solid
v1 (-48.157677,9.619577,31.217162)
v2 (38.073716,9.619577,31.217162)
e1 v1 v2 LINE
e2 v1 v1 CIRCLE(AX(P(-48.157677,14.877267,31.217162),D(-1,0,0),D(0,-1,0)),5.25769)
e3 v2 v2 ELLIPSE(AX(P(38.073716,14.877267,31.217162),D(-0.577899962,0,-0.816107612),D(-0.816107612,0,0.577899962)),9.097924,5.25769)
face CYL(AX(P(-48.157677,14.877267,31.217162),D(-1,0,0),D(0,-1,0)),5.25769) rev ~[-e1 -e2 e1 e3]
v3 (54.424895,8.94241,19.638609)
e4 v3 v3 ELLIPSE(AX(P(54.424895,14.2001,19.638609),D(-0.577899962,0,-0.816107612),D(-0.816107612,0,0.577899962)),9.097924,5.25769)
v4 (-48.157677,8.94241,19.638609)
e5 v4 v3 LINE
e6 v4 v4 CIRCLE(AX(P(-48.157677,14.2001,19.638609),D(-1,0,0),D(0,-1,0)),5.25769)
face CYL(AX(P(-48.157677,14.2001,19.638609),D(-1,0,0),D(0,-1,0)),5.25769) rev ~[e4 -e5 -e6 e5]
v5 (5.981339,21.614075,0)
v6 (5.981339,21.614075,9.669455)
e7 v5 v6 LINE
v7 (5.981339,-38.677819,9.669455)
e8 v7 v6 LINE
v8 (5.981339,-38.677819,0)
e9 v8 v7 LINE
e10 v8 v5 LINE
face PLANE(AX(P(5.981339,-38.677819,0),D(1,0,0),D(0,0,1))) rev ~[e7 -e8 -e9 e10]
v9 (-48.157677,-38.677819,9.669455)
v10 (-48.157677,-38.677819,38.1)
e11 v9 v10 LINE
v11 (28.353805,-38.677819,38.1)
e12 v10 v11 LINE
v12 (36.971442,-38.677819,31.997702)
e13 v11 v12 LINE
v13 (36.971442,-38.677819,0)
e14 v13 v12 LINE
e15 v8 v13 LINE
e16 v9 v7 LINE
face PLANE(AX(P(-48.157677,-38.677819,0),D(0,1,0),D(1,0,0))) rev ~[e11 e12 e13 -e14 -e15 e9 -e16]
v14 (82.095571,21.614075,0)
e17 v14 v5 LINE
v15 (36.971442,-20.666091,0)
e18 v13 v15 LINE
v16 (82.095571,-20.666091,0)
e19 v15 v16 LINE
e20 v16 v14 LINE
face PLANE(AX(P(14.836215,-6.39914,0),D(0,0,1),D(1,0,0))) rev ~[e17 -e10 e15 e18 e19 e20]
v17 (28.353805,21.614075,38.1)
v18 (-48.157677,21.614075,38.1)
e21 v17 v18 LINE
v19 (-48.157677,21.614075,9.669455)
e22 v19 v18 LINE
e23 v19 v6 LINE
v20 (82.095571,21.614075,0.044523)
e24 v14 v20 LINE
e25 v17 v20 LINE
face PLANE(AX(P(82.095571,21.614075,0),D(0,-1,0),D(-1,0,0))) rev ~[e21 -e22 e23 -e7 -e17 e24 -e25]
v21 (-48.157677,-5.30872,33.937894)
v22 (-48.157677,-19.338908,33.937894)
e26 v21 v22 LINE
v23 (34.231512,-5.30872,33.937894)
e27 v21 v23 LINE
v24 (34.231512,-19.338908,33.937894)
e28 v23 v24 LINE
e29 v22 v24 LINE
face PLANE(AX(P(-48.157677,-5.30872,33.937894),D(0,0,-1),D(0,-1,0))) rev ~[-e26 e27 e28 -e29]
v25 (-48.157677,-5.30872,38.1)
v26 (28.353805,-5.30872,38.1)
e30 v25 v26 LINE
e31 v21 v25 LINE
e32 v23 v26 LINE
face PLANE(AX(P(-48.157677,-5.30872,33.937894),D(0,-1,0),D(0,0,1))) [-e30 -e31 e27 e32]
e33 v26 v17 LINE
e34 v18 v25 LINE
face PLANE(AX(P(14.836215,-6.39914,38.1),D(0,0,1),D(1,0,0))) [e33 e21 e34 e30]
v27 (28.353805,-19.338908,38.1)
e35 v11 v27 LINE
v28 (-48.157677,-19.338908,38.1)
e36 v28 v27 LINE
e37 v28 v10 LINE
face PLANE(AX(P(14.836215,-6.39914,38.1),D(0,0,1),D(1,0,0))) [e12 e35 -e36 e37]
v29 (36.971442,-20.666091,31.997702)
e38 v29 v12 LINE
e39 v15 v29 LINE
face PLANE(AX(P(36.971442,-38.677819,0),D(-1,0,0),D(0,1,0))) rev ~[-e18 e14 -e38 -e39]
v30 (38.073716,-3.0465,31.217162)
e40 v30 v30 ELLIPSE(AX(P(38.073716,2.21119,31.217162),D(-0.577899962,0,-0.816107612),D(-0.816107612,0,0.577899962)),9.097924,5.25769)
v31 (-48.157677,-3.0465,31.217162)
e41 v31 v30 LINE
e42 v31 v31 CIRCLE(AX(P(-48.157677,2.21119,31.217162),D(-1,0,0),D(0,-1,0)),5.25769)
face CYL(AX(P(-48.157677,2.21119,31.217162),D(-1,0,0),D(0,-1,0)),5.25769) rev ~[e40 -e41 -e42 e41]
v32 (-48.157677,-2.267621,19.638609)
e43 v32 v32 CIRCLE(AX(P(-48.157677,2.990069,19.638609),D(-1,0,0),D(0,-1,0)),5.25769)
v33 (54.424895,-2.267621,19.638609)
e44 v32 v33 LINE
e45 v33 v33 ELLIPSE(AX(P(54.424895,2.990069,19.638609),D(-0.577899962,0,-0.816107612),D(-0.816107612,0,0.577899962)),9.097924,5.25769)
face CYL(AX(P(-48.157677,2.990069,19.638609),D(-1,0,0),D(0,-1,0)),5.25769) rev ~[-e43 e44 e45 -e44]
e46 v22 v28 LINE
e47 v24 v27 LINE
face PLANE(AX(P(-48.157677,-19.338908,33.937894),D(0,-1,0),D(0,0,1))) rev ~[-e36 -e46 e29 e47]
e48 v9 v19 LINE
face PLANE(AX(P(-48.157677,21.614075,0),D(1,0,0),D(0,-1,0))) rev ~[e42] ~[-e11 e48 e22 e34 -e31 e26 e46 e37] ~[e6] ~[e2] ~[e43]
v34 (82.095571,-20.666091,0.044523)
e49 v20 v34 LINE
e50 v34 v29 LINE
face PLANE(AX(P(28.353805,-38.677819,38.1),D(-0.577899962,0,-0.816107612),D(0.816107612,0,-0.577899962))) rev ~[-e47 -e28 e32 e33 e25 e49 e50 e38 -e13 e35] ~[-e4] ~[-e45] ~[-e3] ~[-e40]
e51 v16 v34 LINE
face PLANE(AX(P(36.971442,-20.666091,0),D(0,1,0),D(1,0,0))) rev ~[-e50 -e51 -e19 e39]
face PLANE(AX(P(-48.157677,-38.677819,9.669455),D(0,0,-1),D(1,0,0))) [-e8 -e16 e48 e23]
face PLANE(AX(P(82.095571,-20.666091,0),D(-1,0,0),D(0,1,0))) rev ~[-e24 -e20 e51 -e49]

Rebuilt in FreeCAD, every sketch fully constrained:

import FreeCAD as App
import Part
import Sketcher

V = App.Vector
Q = App.Units.Quantity

doc = App.newDocument("Part")
body = doc.addObject("PartDesign::Body", "Body")

# Sketch on XY plane
sketch1 = body.newObject("Sketcher::SketchObject", "Sketch")
sketch1.AttachmentSupport = (doc.getObject("XY_Plane"), [""])
sketch1.MapMode = "FlatFace"
sketch1.addGeometry([
    Part.LineSegment(V(82, 22, 0), V(-48, 22, 0)),  # 0
    Part.LineSegment(V(-48, 22, 0), V(-48, -39, 0)),  # 1
    Part.LineSegment(V(-48, -39, 0), V(37, -39, 0)),  # 2
    Part.LineSegment(V(37, -39, 0), V(37, -21, 0)),  # 3
    Part.LineSegment(V(37, -21, 0), V(82, -21, 0)),  # 4
    Part.LineSegment(V(82, -21, 0), V(82, 22, 0)),  # 5
], False)
sketch1.addConstraint([
    Sketcher.Constraint("Coincident", 0, 2, 1, 1),
    Sketcher.Constraint("Coincident", 1, 2, 2, 1),
    Sketcher.Constraint("Coincident", 2, 2, 3, 1),
    Sketcher.Constraint("Coincident", 3, 2, 4, 1),
    Sketcher.Constraint("Coincident", 4, 2, 5, 1),
    Sketcher.Constraint("Coincident", 5, 2, 0, 1),
    Sketcher.Constraint("Horizontal", 0),
    Sketcher.Constraint("Vertical", 1),
    Sketcher.Constraint("Horizontal", 2),
    Sketcher.Constraint("Vertical", 3),
    Sketcher.Constraint("Horizontal", 4),
    Sketcher.Constraint("Vertical", 5),
    Sketcher.Constraint("DistanceX", 0, 2, 0, 1, Q("130.253248 mm")),
    Sketcher.Constraint("DistanceX", 2, 1, 2, 2, Q("85.129119 mm")),
    Sketcher.Constraint("DistanceY", 1, 2, 1, 1, Q("60.291894 mm")),
    Sketcher.Constraint("DistanceY", 3, 1, 3, 2, Q("18.011728 mm")),
    Sketcher.Constraint("DistanceY", 1, 2, -1, 1, Q("38.677819 mm")),
    Sketcher.Constraint("DistanceX", -1, 1, 4, 2, Q("82.095571 mm")),
])
pad1 = body.newObject("PartDesign::Pad", "Pad")
pad1.Profile = sketch1
pad1.Length = Q("1.5 in")

# Sketch on XZ plane
sketch2 = body.newObject("Sketcher::SketchObject", "Sketch001")
sketch2.AttachmentSupport = (doc.getObject("XZ_Plane"), [""])
sketch2.MapMode = "FlatFace"
sketch2.AttachmentOffset = App.Placement(V(0, 0, 38.677819), App.Rotation())
sketch2.addGeometry([
    Part.LineSegment(V(82, 38, 0), V(28, 38, 0)),
    Part.LineSegment(V(28, 38, 0), V(82, 0, 0)),
    Part.LineSegment(V(82, 0, 0), V(82, 38, 0)),
], False)
sketch2.addConstraint([
    Sketcher.Constraint("Coincident", 0, 2, 1, 1),
    Sketcher.Constraint("Coincident", 1, 2, 2, 1),
    Sketcher.Constraint("Coincident", 2, 2, 0, 1),
    Sketcher.Constraint("Horizontal", 0),
    Sketcher.Constraint("Vertical", 2),
    Sketcher.Constraint("PointOnObject", 1, 2, -1),
    Sketcher.Constraint("DistanceY", 2, 1, 2, 2, Q("1.5 in")),
    Sketcher.Constraint("DistanceX", 0, 2, 0, 1, Q("53.804641 mm")),
    Sketcher.Constraint("DistanceX", -1, 1, 0, 2, Q("28.353805 mm")),
])
pocket1 = body.newObject("PartDesign::Pocket", "Pocket")
pocket1.Profile = sketch2
pocket1.Type = "ThroughAll"

# Sketch on YZ plane
sketch3 = body.newObject("Sketcher::SketchObject", "Sketch002")
sketch3.AttachmentSupport = (doc.getObject("YZ_Plane"), [""])
sketch3.MapMode = "FlatFace"
sketch3.AttachmentOffset = App.Placement(V(0, 0, -48.157677), App.Rotation())
sketch3.addGeometry([
    Part.Circle(V(14.9, 31.2, 0), V(0, 0, 1), 5.3),  # 0
    Part.Circle(V(2.2, 31.2, 0), V(0, 0, 1), 5.3),  # 1
    Part.Circle(V(3, 19.6, 0), V(0, 0, 1), 5.3),  # 2
    Part.Circle(V(14.2, 19.6, 0), V(0, 0, 1), 5.3),  # 3
    Part.LineSegment(V(-5.3, 38.1, 0), V(-5.3, 33.9, 0)),  # 4
    Part.LineSegment(V(-5.3, 33.9, 0), V(-19.3, 33.9, 0)),  # 5
    Part.LineSegment(V(-19.3, 33.9, 0), V(-19.3, 38.1, 0)),  # 6
    Part.LineSegment(V(-19.3, 38.1, 0), V(-5.3, 38.1, 0)),  # 7
], False)
sketch3.addConstraint([
    Sketcher.Constraint("Coincident", 4, 2, 5, 1),
    Sketcher.Constraint("Coincident", 5, 2, 6, 1),
    Sketcher.Constraint("Coincident", 6, 2, 7, 1),
    Sketcher.Constraint("Coincident", 7, 2, 4, 1),
    Sketcher.Constraint("Vertical", 4),
    Sketcher.Constraint("Horizontal", 5),
    Sketcher.Constraint("Vertical", 6),
    Sketcher.Constraint("Horizontal", 7),
    Sketcher.Constraint("Equal", 0, 1),
    Sketcher.Constraint("Equal", 1, 2),
    Sketcher.Constraint("Equal", 2, 3),
    Sketcher.Constraint("Horizontal", 0, 3, 1, 3),
    Sketcher.Constraint("Horizontal", 2, 3, 3, 3),
    Sketcher.Constraint("DistanceY", -1, 1, 6, 2, Q("1.5 in")),
    Sketcher.Constraint("Diameter", 0, Q("10.51538 mm")),
    Sketcher.Constraint("DistanceX", 2, 3, 0, 3, Q("0.4679999 in")),
    Sketcher.Constraint("DistanceX", -1, 1, 3, 3, Q("14.2001 mm")),
    Sketcher.Constraint("DistanceX", 5, 2, 5, 1, Q("14.030187 mm")),
    Sketcher.Constraint("DistanceY", 4, 2, 4, 1, Q("4.162106 mm")),
    Sketcher.Constraint("DistanceY", -1, 1, 0, 3, Q("31.217162 mm")),
    Sketcher.Constraint("DistanceX", -1, 1, 1, 3, Q("2.21119 mm")),
    Sketcher.Constraint("DistanceX", -1, 1, 2, 3, Q("2.990069 mm")),
    Sketcher.Constraint("DistanceY", -1, 1, 2, 3, Q("19.638609 mm")),
    Sketcher.Constraint("DistanceX", 4, 2, -1, 1, Q("5.30872 mm")),
])
pocket2 = body.newObject("PartDesign::Pocket", "Pocket001")
pocket2.Profile = sketch3
pocket2.Type = "ThroughAll"
pocket2.Reversed = True

# Sketch on XZ plane
sketch4 = body.newObject("Sketcher::SketchObject", "Sketch003")
sketch4.AttachmentSupport = (doc.getObject("XZ_Plane"), [""])
sketch4.MapMode = "FlatFace"
sketch4.AttachmentOffset = App.Placement(V(0, 0, 38.677819), App.Rotation())
sketch4.addGeometry([
    Part.LineSegment(V(-48, 10, 0), V(-48, 0, 0)),
    Part.LineSegment(V(-48, 0, 0), V(6, 0, 0)),
    Part.LineSegment(V(6, 0, 0), V(6, 10, 0)),
    Part.LineSegment(V(6, 10, 0), V(-48, 10, 0)),
], False)
sketch4.addConstraint([
    Sketcher.Constraint("Coincident", 0, 2, 1, 1),
    Sketcher.Constraint("Coincident", 1, 2, 2, 1),
    Sketcher.Constraint("Coincident", 2, 2, 3, 1),
    Sketcher.Constraint("Coincident", 3, 2, 0, 1),
    Sketcher.Constraint("Vertical", 0),
    Sketcher.Constraint("Horizontal", 1),
    Sketcher.Constraint("Vertical", 2),
    Sketcher.Constraint("Horizontal", 3),
    Sketcher.Constraint("PointOnObject", 0, 2, -1),
    Sketcher.Constraint("DistanceX", 1, 1, 1, 2, Q("54.139016 mm")),
    Sketcher.Constraint("DistanceY", 0, 2, 0, 1, Q("9.669455 mm")),
    Sketcher.Constraint("DistanceX", -1, 1, 1, 2, Q("5.981339 mm")),
])
pocket3 = body.newObject("PartDesign::Pocket", "Pocket002")
pocket3.Profile = sketch4
pocket3.Type = "ThroughAll"

doc.recompute()
